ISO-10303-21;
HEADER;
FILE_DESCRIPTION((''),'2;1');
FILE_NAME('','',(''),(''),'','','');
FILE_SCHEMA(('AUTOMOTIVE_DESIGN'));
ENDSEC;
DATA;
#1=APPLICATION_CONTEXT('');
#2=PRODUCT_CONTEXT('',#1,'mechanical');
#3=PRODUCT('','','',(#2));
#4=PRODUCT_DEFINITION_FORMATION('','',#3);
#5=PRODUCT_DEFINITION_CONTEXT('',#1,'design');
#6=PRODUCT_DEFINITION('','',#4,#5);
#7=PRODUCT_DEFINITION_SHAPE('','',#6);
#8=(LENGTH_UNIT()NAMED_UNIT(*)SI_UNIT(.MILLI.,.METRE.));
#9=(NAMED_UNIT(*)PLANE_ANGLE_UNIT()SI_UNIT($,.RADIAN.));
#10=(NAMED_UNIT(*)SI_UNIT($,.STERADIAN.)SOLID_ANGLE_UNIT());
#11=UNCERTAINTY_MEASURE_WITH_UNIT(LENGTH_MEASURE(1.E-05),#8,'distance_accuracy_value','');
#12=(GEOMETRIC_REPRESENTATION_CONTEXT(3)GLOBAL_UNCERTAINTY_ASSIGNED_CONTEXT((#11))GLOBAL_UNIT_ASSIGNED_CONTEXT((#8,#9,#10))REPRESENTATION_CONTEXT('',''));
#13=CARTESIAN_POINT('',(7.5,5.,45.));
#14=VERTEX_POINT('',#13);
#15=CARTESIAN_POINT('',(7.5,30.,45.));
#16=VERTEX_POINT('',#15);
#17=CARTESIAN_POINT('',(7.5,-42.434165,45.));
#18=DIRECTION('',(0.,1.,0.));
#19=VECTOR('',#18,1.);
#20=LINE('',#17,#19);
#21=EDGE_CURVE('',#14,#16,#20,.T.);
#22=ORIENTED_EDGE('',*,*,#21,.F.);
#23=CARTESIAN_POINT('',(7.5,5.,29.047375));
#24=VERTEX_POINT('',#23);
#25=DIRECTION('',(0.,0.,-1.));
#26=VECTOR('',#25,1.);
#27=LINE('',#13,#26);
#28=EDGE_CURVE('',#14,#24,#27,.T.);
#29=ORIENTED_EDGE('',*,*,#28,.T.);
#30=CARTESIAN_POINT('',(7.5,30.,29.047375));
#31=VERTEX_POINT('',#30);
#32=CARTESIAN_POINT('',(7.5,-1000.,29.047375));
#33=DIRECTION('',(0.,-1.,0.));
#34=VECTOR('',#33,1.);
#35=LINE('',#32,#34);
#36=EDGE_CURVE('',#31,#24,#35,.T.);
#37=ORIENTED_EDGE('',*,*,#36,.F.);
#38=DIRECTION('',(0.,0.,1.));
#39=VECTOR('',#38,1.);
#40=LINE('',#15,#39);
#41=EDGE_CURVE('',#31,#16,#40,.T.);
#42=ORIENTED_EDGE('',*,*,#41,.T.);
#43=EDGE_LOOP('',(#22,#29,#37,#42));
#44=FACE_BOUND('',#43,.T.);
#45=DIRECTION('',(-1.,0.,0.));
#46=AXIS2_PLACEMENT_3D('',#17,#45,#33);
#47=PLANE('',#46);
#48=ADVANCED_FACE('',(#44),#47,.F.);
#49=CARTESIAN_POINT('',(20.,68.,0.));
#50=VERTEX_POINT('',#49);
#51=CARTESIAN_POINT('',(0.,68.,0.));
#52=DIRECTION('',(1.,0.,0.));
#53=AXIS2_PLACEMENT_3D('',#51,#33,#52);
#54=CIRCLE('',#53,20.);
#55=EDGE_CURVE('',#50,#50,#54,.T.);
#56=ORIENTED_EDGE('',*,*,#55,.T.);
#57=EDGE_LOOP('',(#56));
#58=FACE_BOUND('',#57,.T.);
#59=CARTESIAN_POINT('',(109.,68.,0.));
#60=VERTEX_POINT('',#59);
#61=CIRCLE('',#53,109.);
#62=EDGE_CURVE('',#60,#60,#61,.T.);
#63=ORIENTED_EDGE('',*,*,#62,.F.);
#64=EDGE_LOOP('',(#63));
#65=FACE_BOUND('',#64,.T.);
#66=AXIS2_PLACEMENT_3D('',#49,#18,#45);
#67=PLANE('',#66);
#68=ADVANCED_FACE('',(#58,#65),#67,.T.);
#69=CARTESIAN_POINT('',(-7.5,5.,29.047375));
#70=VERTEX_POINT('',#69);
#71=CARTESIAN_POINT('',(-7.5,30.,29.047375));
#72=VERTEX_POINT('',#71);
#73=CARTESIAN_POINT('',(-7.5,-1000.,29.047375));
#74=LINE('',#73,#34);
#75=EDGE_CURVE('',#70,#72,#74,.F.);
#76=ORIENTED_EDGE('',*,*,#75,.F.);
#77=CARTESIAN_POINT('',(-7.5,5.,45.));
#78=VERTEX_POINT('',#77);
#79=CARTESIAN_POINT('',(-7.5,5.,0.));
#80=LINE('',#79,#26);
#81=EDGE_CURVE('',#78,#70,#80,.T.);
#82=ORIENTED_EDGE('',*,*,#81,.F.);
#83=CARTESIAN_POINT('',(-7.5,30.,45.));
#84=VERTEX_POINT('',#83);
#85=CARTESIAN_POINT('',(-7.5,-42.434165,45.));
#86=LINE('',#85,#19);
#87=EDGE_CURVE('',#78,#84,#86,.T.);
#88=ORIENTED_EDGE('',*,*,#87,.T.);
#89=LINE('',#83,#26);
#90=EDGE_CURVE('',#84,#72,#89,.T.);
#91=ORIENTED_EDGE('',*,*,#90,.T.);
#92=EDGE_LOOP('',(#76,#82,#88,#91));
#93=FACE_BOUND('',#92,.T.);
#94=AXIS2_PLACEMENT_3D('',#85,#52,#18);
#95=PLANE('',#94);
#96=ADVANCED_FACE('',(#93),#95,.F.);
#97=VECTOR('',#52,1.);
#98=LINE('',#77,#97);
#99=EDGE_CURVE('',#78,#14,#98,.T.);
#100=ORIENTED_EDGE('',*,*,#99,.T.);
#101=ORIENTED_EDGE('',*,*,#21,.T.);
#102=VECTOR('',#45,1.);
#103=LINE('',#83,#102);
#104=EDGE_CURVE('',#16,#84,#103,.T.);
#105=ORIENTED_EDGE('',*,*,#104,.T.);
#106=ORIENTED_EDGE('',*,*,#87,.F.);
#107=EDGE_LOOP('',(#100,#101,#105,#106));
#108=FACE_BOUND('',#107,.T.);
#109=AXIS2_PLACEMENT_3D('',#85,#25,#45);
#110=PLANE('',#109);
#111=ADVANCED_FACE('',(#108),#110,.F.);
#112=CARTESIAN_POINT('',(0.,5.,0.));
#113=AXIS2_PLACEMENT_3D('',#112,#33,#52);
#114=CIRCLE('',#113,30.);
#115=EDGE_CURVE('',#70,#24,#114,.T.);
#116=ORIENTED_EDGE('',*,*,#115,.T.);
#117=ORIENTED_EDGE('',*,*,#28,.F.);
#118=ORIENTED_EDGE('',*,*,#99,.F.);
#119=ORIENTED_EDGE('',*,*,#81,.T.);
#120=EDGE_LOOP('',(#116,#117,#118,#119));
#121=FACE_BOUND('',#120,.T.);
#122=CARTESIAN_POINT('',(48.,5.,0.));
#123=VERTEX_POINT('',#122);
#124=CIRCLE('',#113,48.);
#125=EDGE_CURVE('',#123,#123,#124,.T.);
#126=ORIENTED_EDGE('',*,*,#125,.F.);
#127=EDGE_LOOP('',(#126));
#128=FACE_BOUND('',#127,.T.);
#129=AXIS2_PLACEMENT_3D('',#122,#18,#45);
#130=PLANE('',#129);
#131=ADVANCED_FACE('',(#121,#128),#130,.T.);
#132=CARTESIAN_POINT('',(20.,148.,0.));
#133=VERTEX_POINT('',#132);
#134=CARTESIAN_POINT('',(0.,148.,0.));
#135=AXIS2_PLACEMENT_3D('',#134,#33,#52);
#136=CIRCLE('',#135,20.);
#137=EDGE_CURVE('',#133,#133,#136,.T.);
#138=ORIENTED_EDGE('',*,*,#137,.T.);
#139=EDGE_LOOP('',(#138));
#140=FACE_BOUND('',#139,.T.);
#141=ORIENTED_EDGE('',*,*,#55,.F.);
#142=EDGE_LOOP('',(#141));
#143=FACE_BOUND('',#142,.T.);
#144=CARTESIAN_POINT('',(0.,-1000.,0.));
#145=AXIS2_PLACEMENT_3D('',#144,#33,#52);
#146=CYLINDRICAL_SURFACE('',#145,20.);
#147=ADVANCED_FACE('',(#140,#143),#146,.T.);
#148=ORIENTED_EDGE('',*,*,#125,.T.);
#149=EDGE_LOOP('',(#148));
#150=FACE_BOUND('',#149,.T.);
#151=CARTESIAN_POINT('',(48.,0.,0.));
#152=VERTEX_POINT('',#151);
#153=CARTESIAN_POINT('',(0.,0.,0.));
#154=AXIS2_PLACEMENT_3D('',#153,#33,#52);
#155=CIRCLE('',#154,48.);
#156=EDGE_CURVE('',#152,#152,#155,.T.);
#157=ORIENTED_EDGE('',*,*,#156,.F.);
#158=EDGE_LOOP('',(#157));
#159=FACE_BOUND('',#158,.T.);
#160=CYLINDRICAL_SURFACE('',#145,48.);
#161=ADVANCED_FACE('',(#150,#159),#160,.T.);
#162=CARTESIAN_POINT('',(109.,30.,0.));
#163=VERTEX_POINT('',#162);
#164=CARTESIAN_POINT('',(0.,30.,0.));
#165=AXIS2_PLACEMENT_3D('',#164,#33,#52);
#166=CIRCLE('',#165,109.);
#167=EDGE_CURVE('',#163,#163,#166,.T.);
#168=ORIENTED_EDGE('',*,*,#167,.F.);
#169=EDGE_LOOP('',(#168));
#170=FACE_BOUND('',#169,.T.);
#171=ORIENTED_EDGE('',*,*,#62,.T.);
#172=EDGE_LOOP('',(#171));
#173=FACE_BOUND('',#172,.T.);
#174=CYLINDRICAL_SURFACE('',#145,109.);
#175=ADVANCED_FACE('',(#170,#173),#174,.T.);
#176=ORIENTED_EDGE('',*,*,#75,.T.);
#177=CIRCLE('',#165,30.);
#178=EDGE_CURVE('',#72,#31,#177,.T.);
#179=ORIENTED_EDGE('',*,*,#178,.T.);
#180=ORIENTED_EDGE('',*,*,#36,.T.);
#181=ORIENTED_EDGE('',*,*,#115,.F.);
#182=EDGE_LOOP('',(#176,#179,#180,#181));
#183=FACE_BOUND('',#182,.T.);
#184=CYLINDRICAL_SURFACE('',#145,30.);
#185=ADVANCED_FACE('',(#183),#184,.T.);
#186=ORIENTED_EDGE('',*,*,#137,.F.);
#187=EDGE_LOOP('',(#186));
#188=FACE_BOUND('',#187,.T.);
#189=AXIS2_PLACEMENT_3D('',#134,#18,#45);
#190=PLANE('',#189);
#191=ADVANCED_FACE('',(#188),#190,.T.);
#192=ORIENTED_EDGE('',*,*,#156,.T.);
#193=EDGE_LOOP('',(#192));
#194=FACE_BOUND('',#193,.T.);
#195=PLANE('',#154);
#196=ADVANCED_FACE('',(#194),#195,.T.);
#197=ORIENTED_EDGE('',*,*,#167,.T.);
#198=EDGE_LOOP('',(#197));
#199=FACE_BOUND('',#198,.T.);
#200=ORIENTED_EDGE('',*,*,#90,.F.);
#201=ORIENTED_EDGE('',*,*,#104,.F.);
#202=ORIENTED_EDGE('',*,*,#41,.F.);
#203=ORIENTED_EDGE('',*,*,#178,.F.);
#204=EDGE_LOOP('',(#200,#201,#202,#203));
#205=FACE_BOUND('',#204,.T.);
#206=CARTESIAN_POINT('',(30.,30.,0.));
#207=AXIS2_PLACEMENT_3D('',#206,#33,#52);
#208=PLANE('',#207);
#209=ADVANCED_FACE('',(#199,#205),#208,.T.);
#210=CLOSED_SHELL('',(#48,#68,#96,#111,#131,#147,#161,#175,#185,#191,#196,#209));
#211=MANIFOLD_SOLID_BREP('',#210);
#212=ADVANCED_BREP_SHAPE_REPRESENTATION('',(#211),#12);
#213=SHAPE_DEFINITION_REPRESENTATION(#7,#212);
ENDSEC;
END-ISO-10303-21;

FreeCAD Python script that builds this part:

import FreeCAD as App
import Part
import Sketcher
Q = App.Units.Quantity

doc = App.newDocument("Part")
params = doc.addObject("Spreadsheet::Sheet", "Params")
for row, (alias, value) in enumerate([
    ("sketch1_width", "89 mm"),
    ("sketch1_width2", "20 mm"),
    ("sketch1_width3", "48 mm"),
    ("sketch1_width4", "18 mm"),
    ("sketch1_height", "80 mm"),
    ("revolution_angle", "360 deg"),
    ("sketch2_width", "15 mm"),
    ("sketch2_height", "45 mm"),
    ("pad1_length", "25 mm"),
], start=1):
    params.set(f"A{row}", alias)
    params.set(f"B{row}", "=" + value)
    params.setAlias(f"B{row}", alias)

body = doc.addObject("PartDesign::Body", "Body")

# Sketch on XY plane
sketch1 = doc.addObject("Sketcher::SketchObject", "Sketch")
body.addObject(sketch1)
sketch1.AttachmentSupport = (doc.XY_Plane, [""])
sketch1.MapMode = "FlatFace"
sketch1.addGeometry(Part.LineSegment(App.Vector(109, 68, 0), App.Vector(20, 68, 0)), False)
sketch1.addGeometry(Part.LineSegment(App.Vector(20, 68, 0), App.Vector(20, 148, 0)), False)
sketch1.addGeometry(Part.LineSegment(App.Vector(20, 148, 0), App.Vector(0, 148, 0)), False)
sketch1.addGeometry(Part.LineSegment(App.Vector(0, 148, 0), App.Vector(0, 0, 0)), False)
sketch1.addGeometry(Part.LineSegment(App.Vector(0, 0, 0), App.Vector(48, 0, 0)), False)
sketch1.addGeometry(Part.LineSegment(App.Vector(48, 0, 0), App.Vector(48, 5, 0)), False)
sketch1.addGeometry(Part.LineSegment(App.Vector(48, 5, 0), App.Vector(30, 5, 0)), False)
sketch1.addGeometry(Part.LineSegment(App.Vector(30, 5, 0), App.Vector(30, 30, 0)), False)
sketch1.addGeometry(Part.LineSegment(App.Vector(30, 30, 0), App.Vector(109, 30, 0)), False)
sketch1.addGeometry(Part.LineSegment(App.Vector(109, 30, 0), App.Vector(109, 68, 0)), False)
sketch1.addConstraint(Sketcher.Constraint("Coincident", 0, 2, 1, 1))
sketch1.addConstraint(Sketcher.Constraint("Coincident", 1, 2, 2, 1))
sketch1.addConstraint(Sketcher.Constraint("Coincident", 2, 2, 3, 1))
sketch1.addConstraint(Sketcher.Constraint("Coincident", 3, 2, 4, 1))
sketch1.addConstraint(Sketcher.Constraint("Coincident", 4, 2, 5, 1))
sketch1.addConstraint(Sketcher.Constraint("Coincident", 5, 2, 6, 1))
sketch1.addConstraint(Sketcher.Constraint("Coincident", 6, 2, 7, 1))
sketch1.addConstraint(Sketcher.Constraint("Coincident", 7, 2, 8, 1))
sketch1.addConstraint(Sketcher.Constraint("Coincident", 8, 2, 9, 1))
sketch1.addConstraint(Sketcher.Constraint("Coincident", 9, 2, 0, 1))
sketch1.addConstraint(Sketcher.Constraint("Horizontal", 0))
sketch1.addConstraint(Sketcher.Constraint("Vertical", 1))
sketch1.addConstraint(Sketcher.Constraint("Horizontal", 2))
sketch1.addConstraint(Sketcher.Constraint("Vertical", 3))
sketch1.addConstraint(Sketcher.Constraint("Horizontal", 4))
sketch1.addConstraint(Sketcher.Constraint("Vertical", 5))
sketch1.addConstraint(Sketcher.Constraint("Horizontal", 6))
sketch1.addConstraint(Sketcher.Constraint("Vertical", 7))
sketch1.addConstraint(Sketcher.Constraint("Horizontal", 8))
sketch1.addConstraint(Sketcher.Constraint("Vertical", 9))
sketch1.addConstraint(Sketcher.Constraint("Coincident", 3, 2, -1, 1))
sketch1.addConstraint(Sketcher.Constraint("DistanceX", 0, 2, 0, 1, Q("89 mm")))
sketch1.addConstraint(Sketcher.Constraint("DistanceX", 2, 2, 2, 1, Q("20 mm")))
sketch1.addConstraint(Sketcher.Constraint("DistanceX", 4, 1, 4, 2, Q("48 mm")))
sketch1.addConstraint(Sketcher.Constraint("DistanceX", 6, 2, 6, 1, Q("18 mm")))
sketch1.addConstraint(Sketcher.Constraint("DistanceY", 1, 1, 1, 2, Q("80 mm")))
sketch1.addConstraint(Sketcher.Constraint("DistanceY", 3, 2, 3, 1, Q("148 mm")))
sketch1.addConstraint(Sketcher.Constraint("DistanceY", 5, 1, 5, 2, Q("5 mm")))
sketch1.addConstraint(Sketcher.Constraint("DistanceY", 7, 1, 7, 2, Q("25 mm")))
sketch1.setExpression("Constraints[21]", "Params.sketch1_width")
sketch1.setExpression("Constraints[22]", "Params.sketch1_width2")
sketch1.setExpression("Constraints[23]", "Params.sketch1_width3")
sketch1.setExpression("Constraints[24]", "Params.sketch1_width4")
sketch1.setExpression("Constraints[25]", "Params.sketch1_height")
revolution = doc.addObject("PartDesign::Revolution", "Revolution")
body.addObject(revolution)
revolution.Profile = sketch1
revolution.ReferenceAxis = (sketch1, ["V_Axis"])
revolution.setExpression("Angle", "Params.revolution_angle")

# Sketch on XZ plane
sketch2 = doc.addObject("Sketcher::SketchObject", "Sketch001")
body.addObject(sketch2)
sketch2.AttachmentSupport = (doc.XZ_Plane, [""])
sketch2.MapMode = "FlatFace"
sketch2.AttachmentOffset = App.Placement(App.Vector(0, 0, -30), App.Rotation())
sketch2.addGeometry(Part.LineSegment(App.Vector(-8, 45, 0), App.Vector(-8, 0, 0)), False)
sketch2.addGeometry(Part.LineSegment(App.Vector(-8, 0, 0), App.Vector(8, 0, 0)), False)
sketch2.addGeometry(Part.LineSegment(App.Vector(8, 0, 0), App.Vector(8, 45, 0)), False)
sketch2.addGeometry(Part.LineSegment(App.Vector(8, 45, 0), App.Vector(-8, 45, 0)), False)
sketch2.addConstraint(Sketcher.Constraint("Coincident", 0, 2, 1, 1))
sketch2.addConstraint(Sketcher.Constraint("Coincident", 1, 2, 2, 1))
sketch2.addConstraint(Sketcher.Constraint("Coincident", 2, 2, 3, 1))
sketch2.addConstraint(Sketcher.Constraint("Coincident", 3, 2, 0, 1))
sketch2.addConstraint(Sketcher.Constraint("Vertical", 0))
sketch2.addConstraint(Sketcher.Constraint("Horizontal", 1))
sketch2.addConstraint(Sketcher.Constraint("Vertical", 2))
sketch2.addConstraint(Sketcher.Constraint("Horizontal", 3))
sketch2.addConstraint(Sketcher.Constraint("Symmetric", 0, 2, 1, 2, -1, 1))
sketch2.addConstraint(Sketcher.Constraint("DistanceX", 1, 1, 1, 2, Q("15 mm")))
sketch2.addConstraint(Sketcher.Constraint("DistanceY", 0, 2, 0, 1, Q("45 mm")))
sketch2.setExpression("Constraints[9]", "Params.sketch2_width")
sketch2.setExpression("Constraints[10]", "Params.sketch2_height")
pad1 = doc.addObject("PartDesign::Pad", "Pad")
body.addObject(pad1)
pad1.Profile = sketch2
pad1.setExpression("Length", "Params.pad1_length")

doc.recompute()
